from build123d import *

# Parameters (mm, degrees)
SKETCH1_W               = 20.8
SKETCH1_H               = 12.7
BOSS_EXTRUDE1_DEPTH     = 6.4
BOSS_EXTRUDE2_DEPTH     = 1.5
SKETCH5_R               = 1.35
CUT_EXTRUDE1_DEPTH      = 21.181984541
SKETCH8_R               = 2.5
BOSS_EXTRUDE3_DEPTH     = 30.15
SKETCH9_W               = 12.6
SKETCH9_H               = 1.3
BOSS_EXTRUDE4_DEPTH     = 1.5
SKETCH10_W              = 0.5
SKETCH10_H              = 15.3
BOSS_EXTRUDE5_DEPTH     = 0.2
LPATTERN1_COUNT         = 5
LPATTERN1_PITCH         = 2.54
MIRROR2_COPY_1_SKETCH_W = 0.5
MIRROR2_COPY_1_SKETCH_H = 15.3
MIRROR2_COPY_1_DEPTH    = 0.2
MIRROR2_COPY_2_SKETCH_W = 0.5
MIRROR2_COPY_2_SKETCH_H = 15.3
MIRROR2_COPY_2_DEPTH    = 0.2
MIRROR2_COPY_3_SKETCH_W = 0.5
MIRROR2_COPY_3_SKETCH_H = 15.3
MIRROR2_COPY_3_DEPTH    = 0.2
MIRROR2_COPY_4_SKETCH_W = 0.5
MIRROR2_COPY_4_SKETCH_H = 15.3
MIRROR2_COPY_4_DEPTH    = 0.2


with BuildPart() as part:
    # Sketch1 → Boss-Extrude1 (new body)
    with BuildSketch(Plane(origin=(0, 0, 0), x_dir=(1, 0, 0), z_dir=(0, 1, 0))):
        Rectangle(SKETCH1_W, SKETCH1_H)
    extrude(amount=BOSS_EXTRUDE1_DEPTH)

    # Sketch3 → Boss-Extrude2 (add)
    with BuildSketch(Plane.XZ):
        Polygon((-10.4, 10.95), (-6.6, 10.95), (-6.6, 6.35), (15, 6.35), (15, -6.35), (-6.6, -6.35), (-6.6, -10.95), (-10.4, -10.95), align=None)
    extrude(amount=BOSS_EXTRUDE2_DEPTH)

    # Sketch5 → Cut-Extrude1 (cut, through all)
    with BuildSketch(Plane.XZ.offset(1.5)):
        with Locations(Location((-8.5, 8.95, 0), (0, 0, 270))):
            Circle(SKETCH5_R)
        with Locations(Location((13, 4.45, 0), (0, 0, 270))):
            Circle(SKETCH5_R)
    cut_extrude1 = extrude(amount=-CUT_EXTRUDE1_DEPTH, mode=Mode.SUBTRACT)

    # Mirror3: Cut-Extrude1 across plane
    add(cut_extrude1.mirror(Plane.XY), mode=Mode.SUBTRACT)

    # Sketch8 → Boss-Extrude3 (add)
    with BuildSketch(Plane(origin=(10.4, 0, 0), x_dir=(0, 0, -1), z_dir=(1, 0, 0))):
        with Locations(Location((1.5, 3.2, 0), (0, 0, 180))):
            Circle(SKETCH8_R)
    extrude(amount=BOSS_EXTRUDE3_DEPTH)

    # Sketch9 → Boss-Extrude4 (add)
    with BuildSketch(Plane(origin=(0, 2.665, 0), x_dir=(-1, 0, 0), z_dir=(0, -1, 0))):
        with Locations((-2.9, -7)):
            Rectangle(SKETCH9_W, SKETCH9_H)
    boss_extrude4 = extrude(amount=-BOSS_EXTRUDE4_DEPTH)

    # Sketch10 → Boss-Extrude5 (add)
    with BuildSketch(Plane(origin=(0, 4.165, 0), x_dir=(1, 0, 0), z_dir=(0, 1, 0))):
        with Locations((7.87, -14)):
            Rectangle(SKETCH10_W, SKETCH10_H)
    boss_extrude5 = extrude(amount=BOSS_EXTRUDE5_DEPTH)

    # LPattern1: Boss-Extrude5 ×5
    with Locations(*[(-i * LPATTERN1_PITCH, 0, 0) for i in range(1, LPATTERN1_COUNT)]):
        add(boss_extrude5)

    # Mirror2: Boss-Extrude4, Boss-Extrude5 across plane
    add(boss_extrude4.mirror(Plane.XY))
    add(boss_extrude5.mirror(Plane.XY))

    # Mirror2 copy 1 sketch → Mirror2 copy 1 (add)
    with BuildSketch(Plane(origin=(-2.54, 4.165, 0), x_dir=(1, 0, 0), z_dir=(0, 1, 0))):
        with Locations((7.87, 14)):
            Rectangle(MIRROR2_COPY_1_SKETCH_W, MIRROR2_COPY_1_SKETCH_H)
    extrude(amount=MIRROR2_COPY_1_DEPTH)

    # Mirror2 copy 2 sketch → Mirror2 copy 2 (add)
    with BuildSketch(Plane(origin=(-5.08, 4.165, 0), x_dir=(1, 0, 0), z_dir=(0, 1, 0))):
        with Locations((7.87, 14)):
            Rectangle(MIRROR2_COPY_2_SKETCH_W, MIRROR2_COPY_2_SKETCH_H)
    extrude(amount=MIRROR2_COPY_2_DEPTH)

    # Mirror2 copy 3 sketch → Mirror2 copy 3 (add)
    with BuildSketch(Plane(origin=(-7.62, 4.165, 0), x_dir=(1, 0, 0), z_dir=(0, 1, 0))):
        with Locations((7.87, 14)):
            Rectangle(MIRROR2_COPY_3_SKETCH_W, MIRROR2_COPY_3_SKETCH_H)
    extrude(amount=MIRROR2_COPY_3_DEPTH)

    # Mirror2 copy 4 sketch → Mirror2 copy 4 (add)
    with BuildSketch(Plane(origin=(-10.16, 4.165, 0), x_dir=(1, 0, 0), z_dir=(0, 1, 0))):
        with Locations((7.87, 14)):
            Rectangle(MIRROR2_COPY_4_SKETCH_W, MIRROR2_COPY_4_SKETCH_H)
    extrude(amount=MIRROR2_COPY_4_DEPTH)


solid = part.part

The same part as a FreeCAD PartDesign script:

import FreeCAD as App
import Part
import Sketcher
from FreeCAD import Vector
Q = App.Units.Quantity

doc = App.newDocument("Part")
body = doc.addObject("PartDesign::Body", "Body")

sketch1 = doc.addObject("Sketcher::SketchObject", "Sketch")
body.addObject(sketch1)
sketch1.AttachmentSupport = (doc.XZ_Plane, [""])
sketch1.MapMode = "FlatFace"
sketch1.addGeometry([
    Part.LineSegment(Vector(-10, -6, 0), Vector(-10, 6, 0)),
    Part.LineSegment(Vector(-10, 6, 0), Vector(10, 6, 0)),
    Part.LineSegment(Vector(10, 6, 0), Vector(10, -6, 0)),
    Part.LineSegment(Vector(10, -6, 0), Vector(-10, -6, 0)),
], False)
sketch1.addConstraint([
    Sketcher.Constraint("Coincident", 0, 2, 1, 1),
    Sketcher.Constraint("Coincident", 1, 2, 2, 1),
    Sketcher.Constraint("Coincident", 2, 2, 3, 1),
    Sketcher.Constraint("Coincident", 3, 2, 0, 1),
    Sketcher.Constraint("Vertical", 0),
    Sketcher.Constraint("Horizontal", 1),
    Sketcher.Constraint("Vertical", 2),
    Sketcher.Constraint("Horizontal", 3),
    Sketcher.Constraint("Symmetric", 0, 2, 2, 2, -1, 1),
    Sketcher.Constraint("DistanceX", 1, 1, 1, 2, Q("20.8 mm")),
    Sketcher.Constraint("DistanceY", 0, 1, 0, 2, Q("12.7 mm")),
])
pad1 = doc.addObject("PartDesign::Pad", "Pad")
body.addObject(pad1)
pad1.Profile = sketch1
pad1.Length = 6.4
pad1.Reversed = True

sketch2 = doc.addObject("Sketcher::SketchObject", "Sketch001")
body.addObject(sketch2)
sketch2.AttachmentSupport = (doc.XZ_Plane, [""])
sketch2.MapMode = "FlatFace"
sketch2.addGeometry([
    Part.LineSegment(Vector(-6.6, 10.9, 0), Vector(-10.4, 10.9, 0)),
    Part.LineSegment(Vector(-10.4, 10.9, 0), Vector(-10.4, -10.9, 0)),
    Part.LineSegment(Vector(-10.4, -10.9, 0), Vector(-6.6, -10.9, 0)),
    Part.LineSegment(Vector(-6.6, -10.9, 0), Vector(-6.6, -6.3, 0)),
    Part.LineSegment(Vector(-6.6, -6.3, 0), Vector(15, -6.3, 0)),
    Part.LineSegment(Vector(15, -6.3, 0), Vector(15, 6.3, 0)),
    Part.LineSegment(Vector(15, 6.3, 0), Vector(-6.6, 6.3, 0)),
    Part.LineSegment(Vector(-6.6, 6.3, 0), Vector(-6.6, 10.9, 0)),
], False)
sketch2.addConstraint([
    Sketcher.Constraint("Coincident", 0, 2, 1, 1),
    Sketcher.Constraint("Coincident", 1, 2, 2, 1),
    Sketcher.Constraint("Coincident", 2, 2, 3, 1),
    Sketcher.Constraint("Coincident", 3, 2, 4, 1),
    Sketcher.Constraint("Coincident", 4, 2, 5, 1),
    Sketcher.Constraint("Coincident", 5, 2, 6, 1),
    Sketcher.Constraint("Coincident", 6, 2, 7, 1),
    Sketcher.Constraint("Coincident", 7, 2, 0, 1),
    Sketcher.Constraint("Horizontal", 0),
    Sketcher.Constraint("Vertical", 1),
    Sketcher.Constraint("Horizontal", 2),
    Sketcher.Constraint("Vertical", 3),
    Sketcher.Constraint("Horizontal", 4),
    Sketcher.Constraint("Vertical", 5),
    Sketcher.Constraint("Horizontal", 6),
    Sketcher.Constraint("Vertical", 7),
    Sketcher.Constraint("Symmetric", 3, 2, 6, 2, -1),
    Sketcher.Constraint("Equal", 3, 7),
    Sketcher.Constraint("DistanceX", 0, 2, 0, 1, Q("3.8 mm")),
    Sketcher.Constraint("DistanceX", 4, 1, 4, 2, Q("21.6 mm")),
    Sketcher.Constraint("DistanceY", 1, 2, 1, 1, Q("21.9 mm")),
    Sketcher.Constraint("DistanceY", 3, 1, 3, 2, Q("4.6 mm")),
    Sketcher.Constraint("DistanceX", -1, 1, 4, 2, Q("15 mm")),
])
pad2 = doc.addObject("PartDesign::Pad", "Pad001")
body.addObject(pad2)
pad2.Profile = sketch2
pad2.Length = 1.5

sketch3 = doc.addObject("Sketcher::SketchObject", "Sketch002")
body.addObject(sketch3)
sketch3.AttachmentSupport = (doc.XZ_Plane, [""])
sketch3.MapMode = "FlatFace"
sketch3.AttachmentOffset = App.Placement(Vector(0, 0, 1.5), App.Rotation())
sketch3.addGeometry([
    Part.Circle(Vector(-8.5, 8.9, 0), Vector(0, 0, 1), 1.4),
    Part.Circle(Vector(13, 4.5, 0), Vector(0, 0, 1), 1.4),
], False)
sketch3.addConstraint([
    Sketcher.Constraint("Equal", 0, 1),
    Sketcher.Constraint("Diameter", 0, Q("2.7 mm")),
    Sketcher.Constraint("DistanceX", -1, 1, 1, 3, Q("13 mm")),
    Sketcher.Constraint("DistanceX", 0, 3, -1, 1, Q("8.5 mm")),
    Sketcher.Constraint("DistanceY", 1, 3, 0, 3, Q("4.5 mm")),
    Sketcher.Constraint("DistanceY", -1, 1, 0, 3, Q("8.95 mm")),
])
pocket1 = doc.addObject("PartDesign::Pocket", "Pocket")
body.addObject(pocket1)
pocket1.Profile = sketch3
pocket1.Type = "ThroughAll"
doc.recompute()

mirrored = doc.addObject("PartDesign::Mirrored", "Mirrored")
body.addObject(mirrored)
mirrored.Originals = [pocket1]
mirrored.MirrorPlane = (doc.XY_Plane, [""])
body.Tip = mirrored

sketch4 = doc.addObject("Sketcher::SketchObject", "Sketch003")
body.addObject(sketch4)
sketch4.AttachmentSupport = (doc.YZ_Plane, [""])
sketch4.MapMode = "FlatFace"
sketch4.AttachmentOffset = App.Placement(Vector(0, 0, 10.4), App.Rotation())
sketch4.addGeometry(Part.Circle(Vector(3.2, -1.5, 0), Vector(0, 0, 1), 2.5), False)
sketch4.addConstraint([
    Sketcher.Constraint("Diameter", 0, Q("5 mm")),
    Sketcher.Constraint("DistanceX", -1, 1, 0, 3, Q("3.2 mm")),
    Sketcher.Constraint("DistanceY", 0, 3, -1, 1, Q("1.5 mm")),
])
pad3 = doc.addObject("PartDesign::Pad", "Pad002")
body.addObject(pad3)
pad3.Profile = sketch4
pad3.Length = 30.15

sketch5 = doc.addObject("Sketcher::SketchObject", "Sketch004")
body.addObject(sketch5)
sketch5.AttachmentSupport = (doc.XZ_Plane, [""])
sketch5.MapMode = "FlatFace"
sketch5.AttachmentOffset = App.Placement(Vector(0, 0, -2.665), App.Rotation())
sketch5.addGeometry([
    Part.LineSegment(Vector(9.2, 6.3, 0), Vector(9.2, 7.7, 0)),
    Part.LineSegment(Vector(9.2, 7.7, 0), Vector(-3.4, 7.7, 0)),
    Part.LineSegment(Vector(-3.4, 7.7, 0), Vector(-3.4, 6.3, 0)),
    Part.LineSegment(Vector(-3.4, 6.3, 0), Vector(9.2, 6.3, 0)),
], False)
sketch5.addConstraint([
    Sketcher.Constraint("Coincident", 0, 2, 1, 1),
    Sketcher.Constraint("Coincident", 1, 2, 2, 1),
    Sketcher.Constraint("Coincident", 2, 2, 3, 1),
    Sketcher.Constraint("Coincident", 3, 2, 0, 1),
    Sketcher.Constraint("Vertical", 0),
    Sketcher.Constraint("Horizontal", 1),
    Sketcher.Constraint("Vertical", 2),
    Sketcher.Constraint("Horizontal", 3),
    Sketcher.Constraint("DistanceX", 1, 2, 1, 1, Q("12.6 mm")),
    Sketcher.Constraint("DistanceY", 0, 1, 0, 2, Q("1.3 mm")),
    Sketcher.Constraint("DistanceX", -1, 1, 0, 2, Q("9.2 mm")),
    Sketcher.Constraint("DistanceY", -1, 1, 0, 2, Q("7.65 mm")),
])
pad4 = doc.addObject("PartDesign::Pad", "Pad003")
body.addObject(pad4)
pad4.Profile = sketch5
pad4.Length = 1.5
pad4.Reversed = True

sketch6 = doc.addObject("Sketcher::SketchObject", "Sketch005")
body.addObject(sketch6)
sketch6.AttachmentSupport = (doc.XZ_Plane, [""])
sketch6.MapMode = "FlatFace"
sketch6.AttachmentOffset = App.Placement(Vector(0, 0, -4.165), App.Rotation())
sketch6.addGeometry([
    Part.LineSegment(Vector(7.62, 6.35, 0), Vector(7.62, 21.65, 0)),
    Part.LineSegment(Vector(7.62, 21.65, 0), Vector(8.12, 21.65, 0)),
    Part.LineSegment(Vector(8.12, 21.65, 0), Vector(8.12, 6.35, 0)),
    Part.LineSegment(Vector(8.12, 6.35, 0), Vector(7.62, 6.35, 0)),
], False)
sketch6.addConstraint([
    Sketcher.Constraint("Coincident", 0, 2, 1, 1),
    Sketcher.Constraint("Coincident", 1, 2, 2, 1),
    Sketcher.Constraint("Coincident", 2, 2, 3, 1),
    Sketcher.Constraint("Coincident", 3, 2, 0, 1),
    Sketcher.Constraint("Vertical", 0),
    Sketcher.Constraint("Horizontal", 1),
    Sketcher.Constraint("Vertical", 2),
    Sketcher.Constraint("Horizontal", 3),
    Sketcher.Constraint("DistanceX", 1, 1, 1, 2, Q("0.5 mm")),
    Sketcher.Constraint("DistanceY", 0, 1, 0, 2, Q("15.3 mm")),
    Sketcher.Constraint("DistanceX", -1, 1, 0, 2, Q("7.62 mm")),
    Sketcher.Constraint("DistanceY", -1, 1, 0, 2, Q("21.65 mm")),
])
pad5 = doc.addObject("PartDesign::Pad", "Pad004")
body.addObject(pad5)
pad5.Profile = sketch6
pad5.Length = 0.2
pad5.Reversed = True
doc.recompute()

linearpattern = doc.addObject("PartDesign::LinearPattern", "LinearPattern")
body.addObject(linearpattern)
linearpattern.Originals = [pad5]
linearpattern.Direction = (doc.X_Axis, [""])
linearpattern.Mode = "offset"
linearpattern.Offset = 2.54
linearpattern.Occurrences = 5
linearpattern.Reversed = True
body.Tip = linearpattern
doc.recompute()

mirrored2 = doc.addObject("PartDesign::Mirrored", "Mirrored001")
body.addObject(mirrored2)
mirrored2.Originals = [pad4, pad5]
mirrored2.MirrorPlane = (doc.XY_Plane, [""])
body.Tip = mirrored2

sketch7 = doc.addObject("Sketcher::SketchObject", "Sketch006")
body.addObject(sketch7)
sketch7.AttachmentSupport = (doc.XZ_Plane, [""])
sketch7.MapMode = "FlatFace"
sketch7.AttachmentOffset = App.Placement(Vector(0, 0, -4.165), App.Rotation())
sketch7.addGeometry([
    Part.LineSegment(Vector(5.1, -21.6, 0), Vector(5.1, -6.3, 0)),
    Part.LineSegment(Vector(5.1, -6.3, 0), Vector(5.6, -6.3, 0)),
    Part.LineSegment(Vector(5.6, -6.3, 0), Vector(5.6, -21.6, 0)),
    Part.LineSegment(Vector(5.6, -21.6, 0), Vector(5.1, -21.6, 0)),
], False)
sketch7.addConstraint([
    Sketcher.Constraint("Coincident", 0, 2, 1, 1),
    Sketcher.Constraint("Coincident", 1, 2, 2, 1),
    Sketcher.Constraint("Coincident", 2, 2, 3, 1),
    Sketcher.Constraint("Coincident", 3, 2, 0, 1),
    Sketcher.Constraint("Vertical", 0),
    Sketcher.Constraint("Horizontal", 1),
    Sketcher.Constraint("Vertical", 2),
    Sketcher.Constraint("Horizontal", 3),
    Sketcher.Constraint("DistanceX", 1, 1, 1, 2, Q("0.5 mm")),
    Sketcher.Constraint("DistanceY", 0, 1, 0, 2, Q("15.3 mm")),
    Sketcher.Constraint("DistanceX", -1, 1, 0, 2, Q("5.08 mm")),
    Sketcher.Constraint("DistanceY", 0, 2, -1, 1, Q("6.35 mm")),
])
pad6 = doc.addObject("PartDesign::Pad", "Pad005")
body.addObject(pad6)
pad6.Profile = sketch7
pad6.Length = 0.2
pad6.Reversed = True

sketch8 = doc.addObject("Sketcher::SketchObject", "Sketch007")
body.addObject(sketch8)
sketch8.AttachmentSupport = (doc.XZ_Plane, [""])
sketch8.MapMode = "FlatFace"
sketch8.AttachmentOffset = App.Placement(Vector(0, 0, -4.165), App.Rotation())
sketch8.addGeometry([
    Part.LineSegment(Vector(2.5, -21.6, 0), Vector(2.5, -6.3, 0)),
    Part.LineSegment(Vector(2.5, -6.3, 0), Vector(3, -6.3, 0)),
    Part.LineSegment(Vector(3, -6.3, 0), Vector(3, -21.6, 0)),
    Part.LineSegment(Vector(3, -21.6, 0), Vector(2.5, -21.6, 0)),
], False)
sketch8.addConstraint([
    Sketcher.Constraint("Coincident", 0, 2, 1, 1),
    Sketcher.Constraint("Coincident", 1, 2, 2, 1),
    Sketcher.Constraint("Coincident", 2, 2, 3, 1),
    Sketcher.Constraint("Coincident", 3, 2, 0, 1),
    Sketcher.Constraint("Vertical", 0),
    Sketcher.Constraint("Horizontal", 1),
    Sketcher.Constraint("Vertical", 2),
    Sketcher.Constraint("Horizontal", 3),
    Sketcher.Constraint("DistanceX", 1, 1, 1, 2, Q("0.5 mm")),
    Sketcher.Constraint("DistanceY", 0, 1, 0, 2, Q("15.3 mm")),
    Sketcher.Constraint("DistanceX", -1, 1, 0, 2, Q("2.54 mm")),
    Sketcher.Constraint("DistanceY", 0, 2, -1, 1, Q("6.35 mm")),
])
pad7 = doc.addObject("PartDesign::Pad", "Pad006")
body.addObject(pad7)
pad7.Profile = sketch8
pad7.Length = 0.2
pad7.Reversed = True

sketch9 = doc.addObject("Sketcher::SketchObject", "Sketch008")
body.addObject(sketch9)
sketch9.AttachmentSupport = (doc.XZ_Plane, [""])
sketch9.MapMode = "FlatFace"
sketch9.AttachmentOffset = App.Placement(Vector(0, 0, -4.165), App.Rotation())
sketch9.addGeometry([
    Part.LineSegment(Vector(0, -21.6, 0), Vector(0, -6.3, 0)),
    Part.LineSegment(Vector(0, -6.3, 0), Vector(0.5, -6.3, 0)),
    Part.LineSegment(Vector(0.5, -6.3, 0), Vector(0.5, -21.6, 0)),
    Part.LineSegment(Vector(0.5, -21.6, 0), Vector(0, -21.6, 0)),
], False)
sketch9.addConstraint([
    Sketcher.Constraint("Coincident", 0, 2, 1, 1),
    Sketcher.Constraint("Coincident", 1, 2, 2, 1),
    Sketcher.Constraint("Coincident", 2, 2, 3, 1),
    Sketcher.Constraint("Coincident", 3, 2, 0, 1),
    Sketcher.Constraint("Vertical", 0),
    Sketcher.Constraint("Horizontal", 1),
    Sketcher.Constraint("Vertical", 2),
    Sketcher.Constraint("Horizontal", 3),
    Sketcher.Constraint("PointOnObject", 0, 2, -2),
    Sketcher.Constraint("DistanceX", 1, 1, 1, 2, Q("0.5 mm")),
    Sketcher.Constraint("DistanceY", 0, 1, 0, 2, Q("15.3 mm")),
    Sketcher.Constraint("DistanceY", 0, 2, -1, 1, Q("6.35 mm")),
])
pad8 = doc.addObject("PartDesign::Pad", "Pad007")
body.addObject(pad8)
pad8.Profile = sketch9
pad8.Length = 0.2
pad8.Reversed = True

sketch10 = doc.addObject("Sketcher::SketchObject", "Sketch009")
body.addObject(sketch10)
sketch10.AttachmentSupport = (doc.XZ_Plane, [""])
sketch10.MapMode = "FlatFace"
sketch10.AttachmentOffset = App.Placement(Vector(0, 0, -4.165), App.Rotation())
sketch10.addGeometry([
    Part.LineSegment(Vector(-2.5, -21.6, 0), Vector(-2.5, -6.3, 0)),
    Part.LineSegment(Vector(-2.5, -6.3, 0), Vector(-2, -6.3, 0)),
    Part.LineSegment(Vector(-2, -6.3, 0), Vector(-2, -21.6, 0)),
    Part.LineSegment(Vector(-2, -21.6, 0), Vector(-2.5, -21.6, 0)),
], False)
sketch10.addConstraint([
    Sketcher.Constraint("Coincident", 0, 2, 1, 1),
    Sketcher.Constraint("Coincident", 1, 2, 2, 1),
    Sketcher.Constraint("Coincident", 2, 2, 3, 1),
    Sketcher.Constraint("Coincident", 3, 2, 0, 1),
    Sketcher.Constraint("Vertical", 0),
    Sketcher.Constraint("Horizontal", 1),
    Sketcher.Constraint("Vertical", 2),
    Sketcher.Constraint("Horizontal", 3),
    Sketcher.Constraint("DistanceX", 1, 1, 1, 2, Q("0.5 mm")),
    Sketcher.Constraint("DistanceY", 0, 1, 0, 2, Q("15.3 mm")),
    Sketcher.Constraint("DistanceX", 0, 2, -1, 1, Q("2.54 mm")),
    Sketcher.Constraint("DistanceY", 0, 2, -1, 1, Q("6.35 mm")),
])
pad9 = doc.addObject("PartDesign::Pad", "Pad008")
body.addObject(pad9)
pad9.Profile = sketch10
pad9.Length = 0.2
pad9.Reversed = True

doc.recompute()
